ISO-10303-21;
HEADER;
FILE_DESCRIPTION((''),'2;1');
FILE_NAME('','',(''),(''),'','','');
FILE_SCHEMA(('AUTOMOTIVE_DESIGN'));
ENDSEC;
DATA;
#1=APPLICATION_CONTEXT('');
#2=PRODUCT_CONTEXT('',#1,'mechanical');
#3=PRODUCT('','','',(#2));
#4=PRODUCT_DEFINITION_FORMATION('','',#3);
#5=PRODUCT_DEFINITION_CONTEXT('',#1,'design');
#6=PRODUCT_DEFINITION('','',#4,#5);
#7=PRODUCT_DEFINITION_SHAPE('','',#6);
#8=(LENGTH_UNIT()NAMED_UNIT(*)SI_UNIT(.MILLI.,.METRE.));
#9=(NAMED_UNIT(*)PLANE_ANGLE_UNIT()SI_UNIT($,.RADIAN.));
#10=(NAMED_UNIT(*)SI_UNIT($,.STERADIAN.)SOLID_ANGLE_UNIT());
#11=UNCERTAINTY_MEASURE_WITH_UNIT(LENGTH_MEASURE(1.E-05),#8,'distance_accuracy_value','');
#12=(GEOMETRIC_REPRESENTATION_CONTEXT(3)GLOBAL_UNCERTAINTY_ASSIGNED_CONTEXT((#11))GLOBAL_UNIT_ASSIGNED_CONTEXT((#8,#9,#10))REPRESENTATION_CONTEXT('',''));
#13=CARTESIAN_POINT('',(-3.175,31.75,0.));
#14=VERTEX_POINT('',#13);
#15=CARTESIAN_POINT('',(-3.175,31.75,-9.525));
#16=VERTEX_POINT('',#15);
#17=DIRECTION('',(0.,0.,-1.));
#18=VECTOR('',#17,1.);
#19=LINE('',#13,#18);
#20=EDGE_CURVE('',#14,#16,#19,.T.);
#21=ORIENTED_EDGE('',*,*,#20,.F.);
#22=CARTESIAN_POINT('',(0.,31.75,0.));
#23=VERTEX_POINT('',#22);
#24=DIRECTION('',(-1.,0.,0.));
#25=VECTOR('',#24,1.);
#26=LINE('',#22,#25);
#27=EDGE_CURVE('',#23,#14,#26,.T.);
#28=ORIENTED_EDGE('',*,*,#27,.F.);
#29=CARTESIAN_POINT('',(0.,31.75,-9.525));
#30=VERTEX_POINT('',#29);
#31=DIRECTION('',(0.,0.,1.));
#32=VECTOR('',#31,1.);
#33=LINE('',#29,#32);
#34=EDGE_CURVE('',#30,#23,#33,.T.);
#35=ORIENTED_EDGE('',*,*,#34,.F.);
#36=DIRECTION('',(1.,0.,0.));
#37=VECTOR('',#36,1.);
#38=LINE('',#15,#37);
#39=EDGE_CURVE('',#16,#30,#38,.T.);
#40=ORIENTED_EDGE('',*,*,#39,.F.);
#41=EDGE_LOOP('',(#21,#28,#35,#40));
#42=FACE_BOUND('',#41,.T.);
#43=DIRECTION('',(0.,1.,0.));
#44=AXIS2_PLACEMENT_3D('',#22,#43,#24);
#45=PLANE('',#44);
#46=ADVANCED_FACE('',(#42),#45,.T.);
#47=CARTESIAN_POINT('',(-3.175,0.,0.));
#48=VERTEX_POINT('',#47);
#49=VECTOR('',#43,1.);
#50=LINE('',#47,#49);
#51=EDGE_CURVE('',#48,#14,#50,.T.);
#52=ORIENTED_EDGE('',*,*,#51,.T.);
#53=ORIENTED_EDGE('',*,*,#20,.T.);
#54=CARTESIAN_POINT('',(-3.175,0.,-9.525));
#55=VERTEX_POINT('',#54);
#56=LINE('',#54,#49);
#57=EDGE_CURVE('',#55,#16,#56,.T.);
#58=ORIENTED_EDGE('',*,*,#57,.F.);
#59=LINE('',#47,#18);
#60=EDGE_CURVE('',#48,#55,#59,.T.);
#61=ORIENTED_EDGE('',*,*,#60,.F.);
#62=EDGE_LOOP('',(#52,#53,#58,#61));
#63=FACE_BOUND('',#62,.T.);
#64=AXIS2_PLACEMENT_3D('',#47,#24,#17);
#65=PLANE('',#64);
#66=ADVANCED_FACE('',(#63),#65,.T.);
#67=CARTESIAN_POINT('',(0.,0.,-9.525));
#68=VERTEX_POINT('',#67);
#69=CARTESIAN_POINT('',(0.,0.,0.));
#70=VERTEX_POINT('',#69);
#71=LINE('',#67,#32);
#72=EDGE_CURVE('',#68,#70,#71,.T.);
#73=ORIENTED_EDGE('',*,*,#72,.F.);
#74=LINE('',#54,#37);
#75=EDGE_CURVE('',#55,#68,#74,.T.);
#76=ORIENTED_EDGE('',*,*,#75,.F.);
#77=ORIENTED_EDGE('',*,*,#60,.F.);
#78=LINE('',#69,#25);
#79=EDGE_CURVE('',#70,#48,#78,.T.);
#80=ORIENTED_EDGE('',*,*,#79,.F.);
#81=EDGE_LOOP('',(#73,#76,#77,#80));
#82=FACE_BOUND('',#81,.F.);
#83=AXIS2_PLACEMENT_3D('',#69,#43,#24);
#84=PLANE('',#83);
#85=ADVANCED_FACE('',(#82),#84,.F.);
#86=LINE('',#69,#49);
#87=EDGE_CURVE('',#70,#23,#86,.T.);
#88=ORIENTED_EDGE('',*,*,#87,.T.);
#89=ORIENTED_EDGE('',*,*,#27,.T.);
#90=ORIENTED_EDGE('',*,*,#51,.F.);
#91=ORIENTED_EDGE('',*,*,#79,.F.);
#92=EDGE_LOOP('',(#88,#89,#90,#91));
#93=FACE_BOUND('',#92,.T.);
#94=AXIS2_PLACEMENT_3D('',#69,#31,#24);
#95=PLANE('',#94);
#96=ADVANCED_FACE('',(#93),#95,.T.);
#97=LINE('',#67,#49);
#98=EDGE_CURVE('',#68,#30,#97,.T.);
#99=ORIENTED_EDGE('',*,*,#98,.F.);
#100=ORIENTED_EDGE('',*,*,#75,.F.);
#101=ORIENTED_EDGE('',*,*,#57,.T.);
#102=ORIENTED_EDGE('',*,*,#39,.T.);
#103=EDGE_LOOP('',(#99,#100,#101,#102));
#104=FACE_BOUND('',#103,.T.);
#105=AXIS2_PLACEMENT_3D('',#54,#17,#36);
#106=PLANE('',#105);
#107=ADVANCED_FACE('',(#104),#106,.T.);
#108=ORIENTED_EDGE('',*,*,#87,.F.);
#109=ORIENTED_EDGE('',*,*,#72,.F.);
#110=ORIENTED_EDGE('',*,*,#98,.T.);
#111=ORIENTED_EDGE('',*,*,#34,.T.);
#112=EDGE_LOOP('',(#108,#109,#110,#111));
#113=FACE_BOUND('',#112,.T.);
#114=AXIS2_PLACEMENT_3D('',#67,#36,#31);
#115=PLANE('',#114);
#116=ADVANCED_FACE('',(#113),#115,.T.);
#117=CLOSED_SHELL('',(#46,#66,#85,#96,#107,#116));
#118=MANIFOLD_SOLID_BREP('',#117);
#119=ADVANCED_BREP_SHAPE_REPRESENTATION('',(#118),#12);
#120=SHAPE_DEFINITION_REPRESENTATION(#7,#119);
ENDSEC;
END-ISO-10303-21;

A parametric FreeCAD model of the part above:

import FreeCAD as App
import Part
import Sketcher
Q = App.Units.Quantity

doc = App.newDocument("Part")
params = doc.addObject("Spreadsheet::Sheet", "Params")
for row, (alias, value) in enumerate([
    ("sketch1_width", "0.125 in"),
    ("sketch1_height", "0.375 in"),
    ("pad1_length", "1.25 in"),
], start=1):
    params.set(f"A{row}", alias)
    params.set(f"B{row}", "=" + value)
    params.setAlias(f"B{row}", alias)

body = doc.addObject("PartDesign::Body", "Body")

sketch1 = body.newObject("Sketcher::SketchObject", "Sketch")
sketch1.AttachmentSupport = (doc.getObject("XZ_Plane"), [""])
sketch1.MapMode = "FlatFace"
sketch1.addGeometry(Part.LineSegment(App.Vector(-3.175, 0, 0), App.Vector(0, 0, 0)), False)
sketch1.addGeometry(Part.LineSegment(App.Vector(0, 0, 0), App.Vector(0, -9.525, 0)), False)
sketch1.addGeometry(Part.LineSegment(App.Vector(0, -9.525, 0), App.Vector(-3.175, -9.525, 0)), False)
sketch1.addGeometry(Part.LineSegment(App.Vector(-3.175, -9.525, 0), App.Vector(-3.175, 0, 0)), False)
sketch1.addConstraint(Sketcher.Constraint("Coincident", 0, 2, 1, 1))
sketch1.addConstraint(Sketcher.Constraint("Coincident", 1, 2, 2, 1))
sketch1.addConstraint(Sketcher.Constraint("Coincident", 2, 2, 3, 1))
sketch1.addConstraint(Sketcher.Constraint("Coincident", 3, 2, 0, 1))
sketch1.addConstraint(Sketcher.Constraint("Horizontal", 0))
sketch1.addConstraint(Sketcher.Constraint("Vertical", 1))
sketch1.addConstraint(Sketcher.Constraint("Horizontal", 2))
sketch1.addConstraint(Sketcher.Constraint("Vertical", 3))
sketch1.addConstraint(Sketcher.Constraint("Coincident", 0, 2, -1, 1))
sketch1.addConstraint(Sketcher.Constraint("DistanceX", 0, 1, 0, 2, Q("0.125 in")))
sketch1.addConstraint(Sketcher.Constraint("DistanceY", 1, 2, 1, 1, Q("0.375 in")))
sketch1.setExpression("Constraints[9]", "Params.sketch1_width")
sketch1.setExpression("Constraints[10]", "Params.sketch1_height")
pad1 = body.newObject("PartDesign::Pad", "Pad")
pad1.Profile = sketch1
pad1.setExpression("Length", "Params.pad1_length")
pad1.Reversed = True

doc.recompute()
